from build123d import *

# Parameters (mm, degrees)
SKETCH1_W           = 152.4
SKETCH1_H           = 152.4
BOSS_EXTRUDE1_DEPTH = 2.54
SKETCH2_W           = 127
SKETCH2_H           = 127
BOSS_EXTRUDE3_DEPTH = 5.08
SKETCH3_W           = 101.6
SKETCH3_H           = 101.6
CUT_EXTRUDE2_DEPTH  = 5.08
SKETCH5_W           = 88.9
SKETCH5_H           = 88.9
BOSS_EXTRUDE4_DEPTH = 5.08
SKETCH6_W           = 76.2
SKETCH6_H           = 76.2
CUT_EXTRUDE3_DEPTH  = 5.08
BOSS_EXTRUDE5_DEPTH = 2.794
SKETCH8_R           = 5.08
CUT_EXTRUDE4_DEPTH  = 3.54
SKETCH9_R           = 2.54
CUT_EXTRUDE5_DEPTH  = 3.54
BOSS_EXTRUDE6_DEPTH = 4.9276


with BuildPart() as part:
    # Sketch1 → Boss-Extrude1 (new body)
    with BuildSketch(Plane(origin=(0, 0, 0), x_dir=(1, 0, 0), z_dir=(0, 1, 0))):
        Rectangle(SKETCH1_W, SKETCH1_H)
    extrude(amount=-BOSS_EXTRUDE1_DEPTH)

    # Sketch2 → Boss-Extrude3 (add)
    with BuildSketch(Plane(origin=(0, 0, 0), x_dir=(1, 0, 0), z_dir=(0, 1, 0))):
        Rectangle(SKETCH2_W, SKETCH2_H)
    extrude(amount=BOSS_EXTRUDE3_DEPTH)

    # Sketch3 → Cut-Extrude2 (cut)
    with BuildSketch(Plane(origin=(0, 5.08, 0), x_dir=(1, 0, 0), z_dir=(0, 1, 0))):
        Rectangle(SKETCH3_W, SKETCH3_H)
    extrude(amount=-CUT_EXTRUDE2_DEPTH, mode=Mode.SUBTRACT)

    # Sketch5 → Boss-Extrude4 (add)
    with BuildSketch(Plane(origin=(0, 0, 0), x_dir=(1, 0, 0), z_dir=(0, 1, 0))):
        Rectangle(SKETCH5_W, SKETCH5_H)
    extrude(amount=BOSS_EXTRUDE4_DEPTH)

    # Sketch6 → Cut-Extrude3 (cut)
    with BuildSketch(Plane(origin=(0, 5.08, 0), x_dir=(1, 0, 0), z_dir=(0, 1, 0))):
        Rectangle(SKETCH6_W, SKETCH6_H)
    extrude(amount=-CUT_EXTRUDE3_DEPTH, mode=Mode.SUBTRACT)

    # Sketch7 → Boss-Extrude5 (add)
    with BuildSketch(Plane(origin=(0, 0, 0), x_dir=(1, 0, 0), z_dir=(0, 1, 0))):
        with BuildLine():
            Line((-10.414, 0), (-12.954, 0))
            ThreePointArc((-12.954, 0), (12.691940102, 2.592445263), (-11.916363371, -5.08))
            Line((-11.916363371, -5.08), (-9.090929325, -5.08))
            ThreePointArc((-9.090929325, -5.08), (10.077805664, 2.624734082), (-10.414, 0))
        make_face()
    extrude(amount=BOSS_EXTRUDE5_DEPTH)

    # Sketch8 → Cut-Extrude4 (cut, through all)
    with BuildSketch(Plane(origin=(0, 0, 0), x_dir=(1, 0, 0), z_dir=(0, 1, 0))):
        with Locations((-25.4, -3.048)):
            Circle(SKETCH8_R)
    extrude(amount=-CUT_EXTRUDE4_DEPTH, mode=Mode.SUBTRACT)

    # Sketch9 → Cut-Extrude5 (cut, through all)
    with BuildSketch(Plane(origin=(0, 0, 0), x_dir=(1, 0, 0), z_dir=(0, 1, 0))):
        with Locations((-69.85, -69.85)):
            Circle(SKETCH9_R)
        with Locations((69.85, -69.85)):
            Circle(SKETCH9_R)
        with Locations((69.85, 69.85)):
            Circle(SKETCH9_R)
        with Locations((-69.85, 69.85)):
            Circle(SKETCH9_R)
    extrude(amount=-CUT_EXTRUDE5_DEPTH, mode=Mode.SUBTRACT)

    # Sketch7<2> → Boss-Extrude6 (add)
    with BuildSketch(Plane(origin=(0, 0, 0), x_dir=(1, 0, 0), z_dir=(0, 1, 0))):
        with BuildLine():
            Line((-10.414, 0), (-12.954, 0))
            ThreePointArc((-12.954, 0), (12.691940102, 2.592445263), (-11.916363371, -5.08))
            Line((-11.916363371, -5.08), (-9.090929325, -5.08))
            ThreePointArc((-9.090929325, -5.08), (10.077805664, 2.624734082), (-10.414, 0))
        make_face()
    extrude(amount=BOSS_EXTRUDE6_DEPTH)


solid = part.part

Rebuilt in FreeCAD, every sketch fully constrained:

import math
import FreeCAD as App
import Part
import Sketcher

V = App.Vector
Q = App.Units.Quantity


def add_polygon(sketch, points):
    """Adds a closed chain of lines whose ends are joined by coincident constraints."""
    first, n = sketch.GeometryCount, len(points)
    for a, b in zip(points, points[1:] + points[:1]):
        sketch.addGeometry(Part.LineSegment(App.Vector(*a, 0), App.Vector(*b, 0)), False)
    for i in range(n):
        sketch.addConstraint(Sketcher.Constraint("Coincident", first + i, 2, first + (i + 1) % n, 1))

doc = App.newDocument("Part")
body = doc.addObject("PartDesign::Body", "Body")

sketch1 = doc.addObject("Sketcher::SketchObject", "Sketch")
body.addObject(sketch1)
sketch1.AttachmentSupport = (doc.XZ_Plane, [""])
sketch1.MapMode = "FlatFace"
add_polygon(sketch1, [(-76, -76), (-76, 76), (76, 76), (76, -76)])
sketch1.addConstraint([
    Sketcher.Constraint("Vertical", 0),
    Sketcher.Constraint("Horizontal", 1),
    Sketcher.Constraint("Vertical", 2),
    Sketcher.Constraint("Horizontal", 3),
    Sketcher.Constraint("Symmetric", 0, 2, 2, 2, -1, 1),
    Sketcher.Constraint("Equal", 3, 0),
    Sketcher.Constraint("DistanceX", 1, 1, 1, 2, Q("6 in")),
])
pad1 = doc.addObject("PartDesign::Pad", "Pad")
body.addObject(pad1)
pad1.Profile = sketch1
pad1.Length = Q("0.1 in")

sketch2 = doc.addObject("Sketcher::SketchObject", "Sketch001")
body.addObject(sketch2)
sketch2.AttachmentSupport = (doc.XZ_Plane, [""])
sketch2.MapMode = "FlatFace"
add_polygon(sketch2, [(-64, -64), (-64, 64), (64, 64), (64, -64)])
sketch2.addConstraint([
    Sketcher.Constraint("Vertical", 0),
    Sketcher.Constraint("Horizontal", 1),
    Sketcher.Constraint("Vertical", 2),
    Sketcher.Constraint("Horizontal", 3),
    Sketcher.Constraint("Symmetric", 0, 2, 2, 2, -1, 1),
    Sketcher.Constraint("Equal", 3, 0),
    Sketcher.Constraint("DistanceX", 1, 1, 1, 2, Q("5 in")),
])
pad2 = doc.addObject("PartDesign::Pad", "Pad001")
body.addObject(pad2)
pad2.Profile = sketch2
pad2.Length = Q("0.2 in")
pad2.Reversed = True

sketch3 = doc.addObject("Sketcher::SketchObject", "Sketch002")
body.addObject(sketch3)
sketch3.AttachmentSupport = (doc.XZ_Plane, [""])
sketch3.MapMode = "FlatFace"
sketch3.AttachmentOffset = App.Placement(V(0, 0, -0.2 * 25.4), App.Rotation())
add_polygon(sketch3, [(-51, -51), (-51, 51), (51, 51), (51, -51)])
sketch3.addConstraint([
    Sketcher.Constraint("Vertical", 0),
    Sketcher.Constraint("Horizontal", 1),
    Sketcher.Constraint("Vertical", 2),
    Sketcher.Constraint("Horizontal", 3),
    Sketcher.Constraint("Symmetric", 0, 2, 2, 2, -1, 1),
    Sketcher.Constraint("Equal", 3, 0),
    Sketcher.Constraint("DistanceX", 1, 1, 1, 2, Q("4 in")),
])
pocket1 = doc.addObject("PartDesign::Pocket", "Pocket")
body.addObject(pocket1)
pocket1.Profile = sketch3
pocket1.Length = Q("0.2 in")
pocket1.Reversed = True

sketch4 = doc.addObject("Sketcher::SketchObject", "Sketch003")
body.addObject(sketch4)
sketch4.AttachmentSupport = (doc.XZ_Plane, [""])
sketch4.MapMode = "FlatFace"
add_polygon(sketch4, [(-44, -44), (-44, 44), (44, 44), (44, -44)])
sketch4.addConstraint([
    Sketcher.Constraint("Vertical", 0),
    Sketcher.Constraint("Horizontal", 1),
    Sketcher.Constraint("Vertical", 2),
    Sketcher.Constraint("Horizontal", 3),
    Sketcher.Constraint("Symmetric", 0, 2, 2, 2, -1, 1),
    Sketcher.Constraint("Equal", 3, 0),
    Sketcher.Constraint("DistanceX", 1, 1, 1, 2, Q("3.5 in")),
])
pad3 = doc.addObject("PartDesign::Pad", "Pad002")
body.addObject(pad3)
pad3.Profile = sketch4
pad3.Length = Q("0.2 in")
pad3.Reversed = True

sketch5 = doc.addObject("Sketcher::SketchObject", "Sketch004")
body.addObject(sketch5)
sketch5.AttachmentSupport = (doc.XZ_Plane, [""])
sketch5.MapMode = "FlatFace"
sketch5.AttachmentOffset = App.Placement(V(0, 0, -0.2 * 25.4), App.Rotation())
add_polygon(sketch5, [(-38, -38), (-38, 38), (38, 38), (38, -38)])
sketch5.addConstraint([
    Sketcher.Constraint("Vertical", 0),
    Sketcher.Constraint("Horizontal", 1),
    Sketcher.Constraint("Vertical", 2),
    Sketcher.Constraint("Horizontal", 3),
    Sketcher.Constraint("Symmetric", 0, 2, 2, 2, -1, 1),
    Sketcher.Constraint("Equal", 3, 0),
    Sketcher.Constraint("DistanceX", 1, 1, 1, 2, Q("3 in")),
])
pocket2 = doc.addObject("PartDesign::Pocket", "Pocket001")
body.addObject(pocket2)
pocket2.Profile = sketch5
pocket2.Length = Q("0.2 in")
pocket2.Reversed = True

sketch6 = doc.addObject("Sketcher::SketchObject", "Sketch005")
body.addObject(sketch6)
sketch6.AttachmentSupport = (doc.XZ_Plane, [""])
sketch6.MapMode = "FlatFace"
sketch6.addGeometry([
    Part.LineSegment(V(-13, 0, 0), V(-10.4, 0, 0)),
    Part.ArcOfCircle(Part.Circle(V(0, 0, 0), V(0, 0, 1), 10.4), math.radians(180), math.radians(511)),
    Part.LineSegment(V(-9.1, 5.1, 0), V(-11.9, 5.1, 0)),
    Part.ArcOfCircle(Part.Circle(V(0, 0, 0), V(0, 0, 1), 13), math.radians(180), math.radians(517)),
], False)
sketch6.addConstraint([
    Sketcher.Constraint("Coincident", 0, 2, 1, 1),
    Sketcher.Constraint("Coincident", 1, 2, 2, 1),
    Sketcher.Constraint("Coincident", 2, 2, 3, 2),
    Sketcher.Constraint("Coincident", 3, 1, 0, 1),
    Sketcher.Constraint("Horizontal", 0),
    Sketcher.Constraint("Horizontal", 2),
    Sketcher.Constraint("Coincident", 1, 3, -1, 1),
    Sketcher.Constraint("Coincident", 3, 3, -1, 1),
    Sketcher.Constraint("PointOnObject", 0, 2, -1),
    Sketcher.Constraint("Radius", 1, Q("0.41 in")),
    Sketcher.Constraint("Radius", 3, Q("0.51 in")),
    Sketcher.Constraint("DistanceY", -1, 1, 1, 2, Q("0.2 in")),
])
pad4 = doc.addObject("PartDesign::Pad", "Pad003")
body.addObject(pad4)
pad4.Profile = sketch6
pad4.Length = Q("0.11 in")
pad4.Reversed = True

sketch7 = doc.addObject("Sketcher::SketchObject", "Sketch006")
body.addObject(sketch7)
sketch7.AttachmentSupport = (doc.XZ_Plane, [""])
sketch7.MapMode = "FlatFace"
sketch7.addGeometry(Part.Circle(V(-25, 3, 0), V(0, 0, 1), 5), False)
sketch7.addConstraint([
    Sketcher.Constraint("Diameter", 0, Q("0.4 in")),
    Sketcher.Constraint("DistanceX", 0, 3, -1, 1, Q("1 in")),
    Sketcher.Constraint("DistanceY", -1, 1, 0, 3, Q("0.12 in")),
])
pocket3 = doc.addObject("PartDesign::Pocket", "Pocket002")
body.addObject(pocket3)
pocket3.Profile = sketch7
pocket3.Type = "ThroughAll"
pocket3.Reversed = True

sketch8 = doc.addObject("Sketcher::SketchObject", "Sketch007")
body.addObject(sketch8)
sketch8.AttachmentSupport = (doc.XZ_Plane, [""])
sketch8.MapMode = "FlatFace"
sketch8.addGeometry([
    Part.Circle(V(-69.8, 69.8, 0), V(0, 0, 1), 2.5),
    Part.Circle(V(69.8, 69.8, 0), V(0, 0, 1), 2.5),
    Part.Circle(V(69.8, -69.8, 0), V(0, 0, 1), 2.5),
    Part.Circle(V(-69.8, -69.8, 0), V(0, 0, 1), 2.5),
], False)
sketch8.addConstraint([
    Sketcher.Constraint("Equal", 0, 1),
    Sketcher.Constraint("Equal", 1, 2),
    Sketcher.Constraint("Equal", 2, 3),
    Sketcher.Constraint("Symmetric", 0, 3, 2, 3, -1, 1),
    Sketcher.Constraint("Symmetric", 1, 3, 3, 3, -1, 1),
    Sketcher.Constraint("Symmetric", 0, 3, 1, 3, -2),
    Sketcher.Constraint("Diameter", 0, Q("0.2 in")),
    Sketcher.Constraint("DistanceX", 0, 3, 1, 3, Q("5.5 in")),
    Sketcher.Constraint("DistanceY", 2, 3, 1, 3, Q("5.5 in")),
])
pocket4 = doc.addObject("PartDesign::Pocket", "Pocket003")
body.addObject(pocket4)
pocket4.Profile = sketch8
pocket4.Type = "ThroughAll"
pocket4.Reversed = True

sketch9 = doc.addObject("Sketcher::SketchObject", "Sketch008")
body.addObject(sketch9)
sketch9.AttachmentSupport = (doc.XZ_Plane, [""])
sketch9.MapMode = "FlatFace"
sketch9.addGeometry([
    Part.LineSegment(V(-13, 0, 0), V(-10.4, 0, 0)),
    Part.ArcOfCircle(Part.Circle(V(0, 0, 0), V(0, 0, 1), 10.4), math.radians(180), math.radians(511)),
    Part.LineSegment(V(-9.1, 5.1, 0), V(-11.9, 5.1, 0)),
    Part.ArcOfCircle(Part.Circle(V(0, 0, 0), V(0, 0, 1), 13), math.radians(180), math.radians(517)),
], False)
sketch9.addConstraint([
    Sketcher.Constraint("Coincident", 0, 2, 1, 1),
    Sketcher.Constraint("Coincident", 1, 2, 2, 1),
    Sketcher.Constraint("Coincident", 2, 2, 3, 2),
    Sketcher.Constraint("Coincident", 3, 1, 0, 1),
    Sketcher.Constraint("Horizontal", 0),
    Sketcher.Constraint("Horizontal", 2),
    Sketcher.Constraint("Coincident", 1, 3, -1, 1),
    Sketcher.Constraint("Coincident", 3, 3, -1, 1),
    Sketcher.Constraint("PointOnObject", 0, 2, -1),
    Sketcher.Constraint("Radius", 1, Q("0.41 in")),
    Sketcher.Constraint("Radius", 3, Q("0.51 in")),
    Sketcher.Constraint("DistanceY", -1, 1, 1, 2, Q("0.2 in")),
])
pad5 = doc.addObject("PartDesign::Pad", "Pad004")
body.addObject(pad5)
pad5.Profile = sketch9
pad5.Length = Q("0.194 in")
pad5.Reversed = True

doc.recompute()
